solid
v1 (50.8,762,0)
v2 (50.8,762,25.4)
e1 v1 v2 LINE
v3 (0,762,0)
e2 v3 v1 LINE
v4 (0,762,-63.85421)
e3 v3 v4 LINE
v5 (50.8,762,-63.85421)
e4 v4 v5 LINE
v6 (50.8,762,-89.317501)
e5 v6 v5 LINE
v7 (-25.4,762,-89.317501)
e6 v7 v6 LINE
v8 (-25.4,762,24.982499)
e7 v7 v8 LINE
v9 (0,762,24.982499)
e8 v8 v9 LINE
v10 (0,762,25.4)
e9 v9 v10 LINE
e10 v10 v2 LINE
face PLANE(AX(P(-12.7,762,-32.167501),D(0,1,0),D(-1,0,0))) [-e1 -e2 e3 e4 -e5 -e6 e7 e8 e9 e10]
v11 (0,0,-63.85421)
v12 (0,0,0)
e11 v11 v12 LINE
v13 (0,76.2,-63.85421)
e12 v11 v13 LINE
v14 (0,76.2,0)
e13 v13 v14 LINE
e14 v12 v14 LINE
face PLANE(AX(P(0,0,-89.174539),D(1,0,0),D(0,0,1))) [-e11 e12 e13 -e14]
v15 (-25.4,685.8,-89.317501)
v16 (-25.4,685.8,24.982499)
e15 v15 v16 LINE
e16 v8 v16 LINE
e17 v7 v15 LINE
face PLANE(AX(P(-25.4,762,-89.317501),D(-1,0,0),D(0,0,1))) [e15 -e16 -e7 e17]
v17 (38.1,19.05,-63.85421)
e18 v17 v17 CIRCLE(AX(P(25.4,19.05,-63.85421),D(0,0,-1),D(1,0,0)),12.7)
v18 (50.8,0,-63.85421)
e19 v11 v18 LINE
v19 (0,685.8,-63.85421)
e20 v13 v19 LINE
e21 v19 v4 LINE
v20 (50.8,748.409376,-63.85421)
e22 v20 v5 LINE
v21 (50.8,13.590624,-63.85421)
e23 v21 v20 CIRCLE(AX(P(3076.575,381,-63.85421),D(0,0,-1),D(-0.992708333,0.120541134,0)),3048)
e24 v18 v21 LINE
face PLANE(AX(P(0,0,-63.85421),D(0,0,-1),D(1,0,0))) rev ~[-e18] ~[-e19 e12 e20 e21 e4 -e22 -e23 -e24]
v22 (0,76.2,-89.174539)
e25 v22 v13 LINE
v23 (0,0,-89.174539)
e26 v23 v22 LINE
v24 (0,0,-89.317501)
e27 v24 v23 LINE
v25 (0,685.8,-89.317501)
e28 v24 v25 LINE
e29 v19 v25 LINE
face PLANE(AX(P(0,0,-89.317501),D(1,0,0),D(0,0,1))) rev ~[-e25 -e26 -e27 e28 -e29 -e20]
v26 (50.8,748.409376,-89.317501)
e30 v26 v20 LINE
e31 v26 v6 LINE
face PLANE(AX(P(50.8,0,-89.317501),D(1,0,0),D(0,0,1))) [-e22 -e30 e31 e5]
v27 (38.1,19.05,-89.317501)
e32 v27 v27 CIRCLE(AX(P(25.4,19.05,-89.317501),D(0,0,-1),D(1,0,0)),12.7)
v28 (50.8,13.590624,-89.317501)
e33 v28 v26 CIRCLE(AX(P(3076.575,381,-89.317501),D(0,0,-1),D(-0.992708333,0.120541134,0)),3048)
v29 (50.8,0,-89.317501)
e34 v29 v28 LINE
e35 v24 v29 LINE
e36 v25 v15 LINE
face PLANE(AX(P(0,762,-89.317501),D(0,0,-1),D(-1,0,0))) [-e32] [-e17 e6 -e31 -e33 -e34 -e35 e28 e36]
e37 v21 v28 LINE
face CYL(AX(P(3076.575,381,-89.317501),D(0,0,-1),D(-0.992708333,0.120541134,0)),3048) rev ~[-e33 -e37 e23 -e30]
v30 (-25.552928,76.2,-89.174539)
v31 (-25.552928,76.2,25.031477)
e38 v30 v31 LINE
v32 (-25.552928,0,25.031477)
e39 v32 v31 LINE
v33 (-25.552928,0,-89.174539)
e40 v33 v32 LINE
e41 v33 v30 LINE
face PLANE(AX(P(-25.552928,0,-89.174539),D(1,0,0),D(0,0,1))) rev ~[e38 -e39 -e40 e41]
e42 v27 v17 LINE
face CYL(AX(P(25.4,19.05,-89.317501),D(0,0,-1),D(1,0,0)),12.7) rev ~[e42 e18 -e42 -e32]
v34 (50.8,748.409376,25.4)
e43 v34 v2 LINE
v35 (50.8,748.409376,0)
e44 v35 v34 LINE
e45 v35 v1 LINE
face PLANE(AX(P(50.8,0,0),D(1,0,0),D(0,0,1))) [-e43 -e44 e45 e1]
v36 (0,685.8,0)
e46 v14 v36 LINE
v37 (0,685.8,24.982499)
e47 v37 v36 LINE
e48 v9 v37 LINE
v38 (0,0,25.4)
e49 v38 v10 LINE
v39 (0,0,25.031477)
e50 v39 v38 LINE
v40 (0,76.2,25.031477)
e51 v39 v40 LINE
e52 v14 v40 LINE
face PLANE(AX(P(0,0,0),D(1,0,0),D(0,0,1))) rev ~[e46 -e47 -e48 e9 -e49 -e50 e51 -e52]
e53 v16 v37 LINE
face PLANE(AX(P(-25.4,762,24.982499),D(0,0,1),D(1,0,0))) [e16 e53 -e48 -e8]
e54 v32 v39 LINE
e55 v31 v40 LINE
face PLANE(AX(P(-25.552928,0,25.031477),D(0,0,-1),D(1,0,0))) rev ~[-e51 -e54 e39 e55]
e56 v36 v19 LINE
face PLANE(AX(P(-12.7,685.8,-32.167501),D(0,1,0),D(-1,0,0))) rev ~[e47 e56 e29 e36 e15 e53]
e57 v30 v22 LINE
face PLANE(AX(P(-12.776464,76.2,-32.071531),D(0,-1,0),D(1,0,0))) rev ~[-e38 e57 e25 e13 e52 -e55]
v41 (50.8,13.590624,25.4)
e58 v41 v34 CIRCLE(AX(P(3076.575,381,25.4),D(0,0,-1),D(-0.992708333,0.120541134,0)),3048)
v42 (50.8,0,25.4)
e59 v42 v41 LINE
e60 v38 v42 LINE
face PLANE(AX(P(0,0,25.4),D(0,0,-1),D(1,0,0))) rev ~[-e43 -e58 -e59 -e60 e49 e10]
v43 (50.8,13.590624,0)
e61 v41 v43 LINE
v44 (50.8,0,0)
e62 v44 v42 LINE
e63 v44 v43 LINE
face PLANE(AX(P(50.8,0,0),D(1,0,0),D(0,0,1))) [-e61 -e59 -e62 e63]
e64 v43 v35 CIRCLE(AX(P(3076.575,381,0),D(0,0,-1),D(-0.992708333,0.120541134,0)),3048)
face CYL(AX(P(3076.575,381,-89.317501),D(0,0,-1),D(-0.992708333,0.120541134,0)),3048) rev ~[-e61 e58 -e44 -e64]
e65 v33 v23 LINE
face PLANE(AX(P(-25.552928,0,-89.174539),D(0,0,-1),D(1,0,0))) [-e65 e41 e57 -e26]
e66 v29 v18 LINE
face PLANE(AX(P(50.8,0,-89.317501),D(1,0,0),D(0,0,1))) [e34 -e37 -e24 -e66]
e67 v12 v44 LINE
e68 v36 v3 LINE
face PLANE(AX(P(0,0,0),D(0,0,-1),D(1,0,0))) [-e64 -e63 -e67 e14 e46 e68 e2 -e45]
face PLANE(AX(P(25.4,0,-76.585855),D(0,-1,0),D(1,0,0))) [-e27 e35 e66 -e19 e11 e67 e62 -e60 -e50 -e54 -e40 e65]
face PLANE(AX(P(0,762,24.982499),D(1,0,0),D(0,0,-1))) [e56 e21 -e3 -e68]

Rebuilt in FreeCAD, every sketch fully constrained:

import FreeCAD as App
import Part
import Sketcher

V = App.Vector
Q = App.Units.Quantity


def add_polygon(sketch, points):
    """Adds a closed chain of lines whose ends are joined by coincident constraints."""
    first, n = sketch.GeometryCount, len(points)
    for a, b in zip(points, points[1:] + points[:1]):
        sketch.addGeometry(Part.LineSegment(App.Vector(*a, 0), App.Vector(*b, 0)), False)
    for i in range(n):
        sketch.addConstraint(Sketcher.Constraint("Coincident", first + i, 2, first + (i + 1) % n, 1))

doc = App.newDocument("Part")
body = doc.addObject("PartDesign::Body", "Body")

sketch1 = body.newObject("Sketcher::SketchObject", "Sketch")
sketch1.AttachmentSupport = (doc.getObject("XZ_Plane"), [""])
sketch1.MapMode = "FlatFace"
add_polygon(sketch1, [(0, 25), (0, 0), (51, 0), (51, 25)])
sketch1.addConstraint(Sketcher.Constraint("Vertical", 0))
sketch1.addConstraint(Sketcher.Constraint("Horizontal", 1))
sketch1.addConstraint(Sketcher.Constraint("Vertical", 2))
sketch1.addConstraint(Sketcher.Constraint("Horizontal", 3))
sketch1.addConstraint(Sketcher.Constraint("Coincident", 0, 2, -1, 1))
sketch1.addConstraint(Sketcher.Constraint("DistanceX", 1, 1, 1, 2, Q("2 in")))
sketch1.addConstraint(Sketcher.Constraint("DistanceY", 0, 2, 0, 1, Q("1 in")))
pad1 = body.newObject("PartDesign::Pad", "Pad")
pad1.Profile = sketch1
pad1.Length = Q("30 in")
pad1.Reversed = True

sketch2 = body.newObject("Sketcher::SketchObject", "Sketch001")
sketch2.AttachmentSupport = (doc.getObject("XZ_Plane"), [""])
sketch2.MapMode = "FlatFace"
add_polygon(sketch2, [(-26, 25), (-26, -89), (0, -89), (0, 25)])
sketch2.addConstraint(Sketcher.Constraint("Vertical", 0))
sketch2.addConstraint(Sketcher.Constraint("Horizontal", 1))
sketch2.addConstraint(Sketcher.Constraint("Vertical", 2))
sketch2.addConstraint(Sketcher.Constraint("Horizontal", 3))
sketch2.addConstraint(Sketcher.Constraint("PointOnObject", 1, 2, -2))
sketch2.addConstraint(Sketcher.Constraint("DistanceY", 0, 2, 0, 1, Q("4.4962998 in")))
sketch2.addConstraint(Sketcher.Constraint("DistanceX", 1, 1, 1, 2, Q("25.552928 mm")))
sketch2.addConstraint(Sketcher.Constraint("DistanceY", 0, 2, -1, 1, Q("89.174539 mm")))
pad2 = body.newObject("PartDesign::Pad", "Pad001")
pad2.Profile = sketch2
pad2.Length = Q("3 in")
pad2.Reversed = True

sketch3 = body.newObject("Sketcher::SketchObject", "Sketch002")
sketch3.AttachmentSupport = (doc.getObject("XZ_Plane"), [""])
sketch3.MapMode = "FlatFace"
add_polygon(sketch3, [(0, -64), (0, -89), (51, -89), (51, -64)])
sketch3.addConstraint(Sketcher.Constraint("Vertical", 0))
sketch3.addConstraint(Sketcher.Constraint("Horizontal", 1))
sketch3.addConstraint(Sketcher.Constraint("Vertical", 2))
sketch3.addConstraint(Sketcher.Constraint("Horizontal", 3))
sketch3.addConstraint(Sketcher.Constraint("PointOnObject", 0, 2, -2))
sketch3.addConstraint(Sketcher.Constraint("DistanceX", 1, 1, 1, 2, Q("2 in")))
sketch3.addConstraint(Sketcher.Constraint("DistanceY", 0, 2, 0, 1, Q("25.463291 mm")))
sketch3.addConstraint(Sketcher.Constraint("DistanceY", 0, 2, -1, 1, Q("89.317501 mm")))
pad3 = body.newObject("PartDesign::Pad", "Pad002")
pad3.Profile = sketch3
pad3.Length = Q("30 in")
pad3.Reversed = True

sketch4 = body.newObject("Sketcher::SketchObject", "Sketch003")
sketch4.AttachmentSupport = (doc.getObject("XZ_Plane"), [""])
sketch4.MapMode = "FlatFace"
sketch4.AttachmentOffset = App.Placement(V(0, 0, -30 * 25.4), App.Rotation())
add_polygon(sketch4, [(0, -89), (-25, -89), (-25, 25), (0, 25)])
sketch4.addConstraint(Sketcher.Constraint("Horizontal", 0))
sketch4.addConstraint(Sketcher.Constraint("Vertical", 1))
sketch4.addConstraint(Sketcher.Constraint("Horizontal", 2))
sketch4.addConstraint(Sketcher.Constraint("Vertical", 3))
sketch4.addConstraint(Sketcher.Constraint("PointOnObject", 2, 2, -2))
sketch4.addConstraint(Sketcher.Constraint("DistanceX", 0, 2, 0, 1, Q("1 in")))
sketch4.addConstraint(Sketcher.Constraint("DistanceY", 1, 1, 1, 2, Q("4.5 in")))
sketch4.addConstraint(Sketcher.Constraint("DistanceY", 0, 2, -1, 1, Q("89.317501 mm")))
pad4 = body.newObject("PartDesign::Pad", "Pad003")
pad4.Profile = sketch4
pad4.Length = Q("3 in")

sketch5 = body.newObject("Sketcher::SketchObject", "Sketch004")
sketch5.AttachmentSupport = (doc.getObject("XY_Plane"), [""])
sketch5.MapMode = "FlatFace"
sketch5.AttachmentOffset = App.Placement(V(0, 0, -89.317501), App.Rotation())
sketch5.addGeometry(Part.Circle(V(3077, 381, 0), V(0, 0, 1), 3048), False)
sketch5.addConstraint(Sketcher.Constraint("Diameter", 0, Q("240 in")))
sketch5.addConstraint(Sketcher.Constraint("DistanceY", -1, 1, 0, 3, Q("15 in")))
sketch5.addConstraint(Sketcher.Constraint("DistanceX", -1, 1, 0, 3, Q("121.125 in")))
pocket1 = body.newObject("PartDesign::Pocket", "Pocket")
pocket1.Profile = sketch5
pocket1.Type = "ThroughAll"
pocket1.Reversed = True

sketch6 = body.newObject("Sketcher::SketchObject", "Sketch005")
sketch6.AttachmentSupport = (doc.getObject("XY_Plane"), [""])
sketch6.MapMode = "FlatFace"
sketch6.AttachmentOffset = App.Placement(V(0, 0, -89.317501), App.Rotation())
sketch6.addGeometry(Part.Circle(V(25, 19, 0), V(0, 0, 1), 13), False)
sketch6.addConstraint(Sketcher.Constraint("Diameter", 0, Q("1 in")))
sketch6.addConstraint(Sketcher.Constraint("DistanceX", -1, 1, 0, 3, Q("1 in")))
sketch6.addConstraint(Sketcher.Constraint("DistanceY", -1, 1, 0, 3, Q("0.75 in")))
pocket2 = body.newObject("PartDesign::Pocket", "Pocket001")
pocket2.Profile = sketch6
pocket2.Length = 25.463291
pocket2.Reversed = True

doc.recompute()
